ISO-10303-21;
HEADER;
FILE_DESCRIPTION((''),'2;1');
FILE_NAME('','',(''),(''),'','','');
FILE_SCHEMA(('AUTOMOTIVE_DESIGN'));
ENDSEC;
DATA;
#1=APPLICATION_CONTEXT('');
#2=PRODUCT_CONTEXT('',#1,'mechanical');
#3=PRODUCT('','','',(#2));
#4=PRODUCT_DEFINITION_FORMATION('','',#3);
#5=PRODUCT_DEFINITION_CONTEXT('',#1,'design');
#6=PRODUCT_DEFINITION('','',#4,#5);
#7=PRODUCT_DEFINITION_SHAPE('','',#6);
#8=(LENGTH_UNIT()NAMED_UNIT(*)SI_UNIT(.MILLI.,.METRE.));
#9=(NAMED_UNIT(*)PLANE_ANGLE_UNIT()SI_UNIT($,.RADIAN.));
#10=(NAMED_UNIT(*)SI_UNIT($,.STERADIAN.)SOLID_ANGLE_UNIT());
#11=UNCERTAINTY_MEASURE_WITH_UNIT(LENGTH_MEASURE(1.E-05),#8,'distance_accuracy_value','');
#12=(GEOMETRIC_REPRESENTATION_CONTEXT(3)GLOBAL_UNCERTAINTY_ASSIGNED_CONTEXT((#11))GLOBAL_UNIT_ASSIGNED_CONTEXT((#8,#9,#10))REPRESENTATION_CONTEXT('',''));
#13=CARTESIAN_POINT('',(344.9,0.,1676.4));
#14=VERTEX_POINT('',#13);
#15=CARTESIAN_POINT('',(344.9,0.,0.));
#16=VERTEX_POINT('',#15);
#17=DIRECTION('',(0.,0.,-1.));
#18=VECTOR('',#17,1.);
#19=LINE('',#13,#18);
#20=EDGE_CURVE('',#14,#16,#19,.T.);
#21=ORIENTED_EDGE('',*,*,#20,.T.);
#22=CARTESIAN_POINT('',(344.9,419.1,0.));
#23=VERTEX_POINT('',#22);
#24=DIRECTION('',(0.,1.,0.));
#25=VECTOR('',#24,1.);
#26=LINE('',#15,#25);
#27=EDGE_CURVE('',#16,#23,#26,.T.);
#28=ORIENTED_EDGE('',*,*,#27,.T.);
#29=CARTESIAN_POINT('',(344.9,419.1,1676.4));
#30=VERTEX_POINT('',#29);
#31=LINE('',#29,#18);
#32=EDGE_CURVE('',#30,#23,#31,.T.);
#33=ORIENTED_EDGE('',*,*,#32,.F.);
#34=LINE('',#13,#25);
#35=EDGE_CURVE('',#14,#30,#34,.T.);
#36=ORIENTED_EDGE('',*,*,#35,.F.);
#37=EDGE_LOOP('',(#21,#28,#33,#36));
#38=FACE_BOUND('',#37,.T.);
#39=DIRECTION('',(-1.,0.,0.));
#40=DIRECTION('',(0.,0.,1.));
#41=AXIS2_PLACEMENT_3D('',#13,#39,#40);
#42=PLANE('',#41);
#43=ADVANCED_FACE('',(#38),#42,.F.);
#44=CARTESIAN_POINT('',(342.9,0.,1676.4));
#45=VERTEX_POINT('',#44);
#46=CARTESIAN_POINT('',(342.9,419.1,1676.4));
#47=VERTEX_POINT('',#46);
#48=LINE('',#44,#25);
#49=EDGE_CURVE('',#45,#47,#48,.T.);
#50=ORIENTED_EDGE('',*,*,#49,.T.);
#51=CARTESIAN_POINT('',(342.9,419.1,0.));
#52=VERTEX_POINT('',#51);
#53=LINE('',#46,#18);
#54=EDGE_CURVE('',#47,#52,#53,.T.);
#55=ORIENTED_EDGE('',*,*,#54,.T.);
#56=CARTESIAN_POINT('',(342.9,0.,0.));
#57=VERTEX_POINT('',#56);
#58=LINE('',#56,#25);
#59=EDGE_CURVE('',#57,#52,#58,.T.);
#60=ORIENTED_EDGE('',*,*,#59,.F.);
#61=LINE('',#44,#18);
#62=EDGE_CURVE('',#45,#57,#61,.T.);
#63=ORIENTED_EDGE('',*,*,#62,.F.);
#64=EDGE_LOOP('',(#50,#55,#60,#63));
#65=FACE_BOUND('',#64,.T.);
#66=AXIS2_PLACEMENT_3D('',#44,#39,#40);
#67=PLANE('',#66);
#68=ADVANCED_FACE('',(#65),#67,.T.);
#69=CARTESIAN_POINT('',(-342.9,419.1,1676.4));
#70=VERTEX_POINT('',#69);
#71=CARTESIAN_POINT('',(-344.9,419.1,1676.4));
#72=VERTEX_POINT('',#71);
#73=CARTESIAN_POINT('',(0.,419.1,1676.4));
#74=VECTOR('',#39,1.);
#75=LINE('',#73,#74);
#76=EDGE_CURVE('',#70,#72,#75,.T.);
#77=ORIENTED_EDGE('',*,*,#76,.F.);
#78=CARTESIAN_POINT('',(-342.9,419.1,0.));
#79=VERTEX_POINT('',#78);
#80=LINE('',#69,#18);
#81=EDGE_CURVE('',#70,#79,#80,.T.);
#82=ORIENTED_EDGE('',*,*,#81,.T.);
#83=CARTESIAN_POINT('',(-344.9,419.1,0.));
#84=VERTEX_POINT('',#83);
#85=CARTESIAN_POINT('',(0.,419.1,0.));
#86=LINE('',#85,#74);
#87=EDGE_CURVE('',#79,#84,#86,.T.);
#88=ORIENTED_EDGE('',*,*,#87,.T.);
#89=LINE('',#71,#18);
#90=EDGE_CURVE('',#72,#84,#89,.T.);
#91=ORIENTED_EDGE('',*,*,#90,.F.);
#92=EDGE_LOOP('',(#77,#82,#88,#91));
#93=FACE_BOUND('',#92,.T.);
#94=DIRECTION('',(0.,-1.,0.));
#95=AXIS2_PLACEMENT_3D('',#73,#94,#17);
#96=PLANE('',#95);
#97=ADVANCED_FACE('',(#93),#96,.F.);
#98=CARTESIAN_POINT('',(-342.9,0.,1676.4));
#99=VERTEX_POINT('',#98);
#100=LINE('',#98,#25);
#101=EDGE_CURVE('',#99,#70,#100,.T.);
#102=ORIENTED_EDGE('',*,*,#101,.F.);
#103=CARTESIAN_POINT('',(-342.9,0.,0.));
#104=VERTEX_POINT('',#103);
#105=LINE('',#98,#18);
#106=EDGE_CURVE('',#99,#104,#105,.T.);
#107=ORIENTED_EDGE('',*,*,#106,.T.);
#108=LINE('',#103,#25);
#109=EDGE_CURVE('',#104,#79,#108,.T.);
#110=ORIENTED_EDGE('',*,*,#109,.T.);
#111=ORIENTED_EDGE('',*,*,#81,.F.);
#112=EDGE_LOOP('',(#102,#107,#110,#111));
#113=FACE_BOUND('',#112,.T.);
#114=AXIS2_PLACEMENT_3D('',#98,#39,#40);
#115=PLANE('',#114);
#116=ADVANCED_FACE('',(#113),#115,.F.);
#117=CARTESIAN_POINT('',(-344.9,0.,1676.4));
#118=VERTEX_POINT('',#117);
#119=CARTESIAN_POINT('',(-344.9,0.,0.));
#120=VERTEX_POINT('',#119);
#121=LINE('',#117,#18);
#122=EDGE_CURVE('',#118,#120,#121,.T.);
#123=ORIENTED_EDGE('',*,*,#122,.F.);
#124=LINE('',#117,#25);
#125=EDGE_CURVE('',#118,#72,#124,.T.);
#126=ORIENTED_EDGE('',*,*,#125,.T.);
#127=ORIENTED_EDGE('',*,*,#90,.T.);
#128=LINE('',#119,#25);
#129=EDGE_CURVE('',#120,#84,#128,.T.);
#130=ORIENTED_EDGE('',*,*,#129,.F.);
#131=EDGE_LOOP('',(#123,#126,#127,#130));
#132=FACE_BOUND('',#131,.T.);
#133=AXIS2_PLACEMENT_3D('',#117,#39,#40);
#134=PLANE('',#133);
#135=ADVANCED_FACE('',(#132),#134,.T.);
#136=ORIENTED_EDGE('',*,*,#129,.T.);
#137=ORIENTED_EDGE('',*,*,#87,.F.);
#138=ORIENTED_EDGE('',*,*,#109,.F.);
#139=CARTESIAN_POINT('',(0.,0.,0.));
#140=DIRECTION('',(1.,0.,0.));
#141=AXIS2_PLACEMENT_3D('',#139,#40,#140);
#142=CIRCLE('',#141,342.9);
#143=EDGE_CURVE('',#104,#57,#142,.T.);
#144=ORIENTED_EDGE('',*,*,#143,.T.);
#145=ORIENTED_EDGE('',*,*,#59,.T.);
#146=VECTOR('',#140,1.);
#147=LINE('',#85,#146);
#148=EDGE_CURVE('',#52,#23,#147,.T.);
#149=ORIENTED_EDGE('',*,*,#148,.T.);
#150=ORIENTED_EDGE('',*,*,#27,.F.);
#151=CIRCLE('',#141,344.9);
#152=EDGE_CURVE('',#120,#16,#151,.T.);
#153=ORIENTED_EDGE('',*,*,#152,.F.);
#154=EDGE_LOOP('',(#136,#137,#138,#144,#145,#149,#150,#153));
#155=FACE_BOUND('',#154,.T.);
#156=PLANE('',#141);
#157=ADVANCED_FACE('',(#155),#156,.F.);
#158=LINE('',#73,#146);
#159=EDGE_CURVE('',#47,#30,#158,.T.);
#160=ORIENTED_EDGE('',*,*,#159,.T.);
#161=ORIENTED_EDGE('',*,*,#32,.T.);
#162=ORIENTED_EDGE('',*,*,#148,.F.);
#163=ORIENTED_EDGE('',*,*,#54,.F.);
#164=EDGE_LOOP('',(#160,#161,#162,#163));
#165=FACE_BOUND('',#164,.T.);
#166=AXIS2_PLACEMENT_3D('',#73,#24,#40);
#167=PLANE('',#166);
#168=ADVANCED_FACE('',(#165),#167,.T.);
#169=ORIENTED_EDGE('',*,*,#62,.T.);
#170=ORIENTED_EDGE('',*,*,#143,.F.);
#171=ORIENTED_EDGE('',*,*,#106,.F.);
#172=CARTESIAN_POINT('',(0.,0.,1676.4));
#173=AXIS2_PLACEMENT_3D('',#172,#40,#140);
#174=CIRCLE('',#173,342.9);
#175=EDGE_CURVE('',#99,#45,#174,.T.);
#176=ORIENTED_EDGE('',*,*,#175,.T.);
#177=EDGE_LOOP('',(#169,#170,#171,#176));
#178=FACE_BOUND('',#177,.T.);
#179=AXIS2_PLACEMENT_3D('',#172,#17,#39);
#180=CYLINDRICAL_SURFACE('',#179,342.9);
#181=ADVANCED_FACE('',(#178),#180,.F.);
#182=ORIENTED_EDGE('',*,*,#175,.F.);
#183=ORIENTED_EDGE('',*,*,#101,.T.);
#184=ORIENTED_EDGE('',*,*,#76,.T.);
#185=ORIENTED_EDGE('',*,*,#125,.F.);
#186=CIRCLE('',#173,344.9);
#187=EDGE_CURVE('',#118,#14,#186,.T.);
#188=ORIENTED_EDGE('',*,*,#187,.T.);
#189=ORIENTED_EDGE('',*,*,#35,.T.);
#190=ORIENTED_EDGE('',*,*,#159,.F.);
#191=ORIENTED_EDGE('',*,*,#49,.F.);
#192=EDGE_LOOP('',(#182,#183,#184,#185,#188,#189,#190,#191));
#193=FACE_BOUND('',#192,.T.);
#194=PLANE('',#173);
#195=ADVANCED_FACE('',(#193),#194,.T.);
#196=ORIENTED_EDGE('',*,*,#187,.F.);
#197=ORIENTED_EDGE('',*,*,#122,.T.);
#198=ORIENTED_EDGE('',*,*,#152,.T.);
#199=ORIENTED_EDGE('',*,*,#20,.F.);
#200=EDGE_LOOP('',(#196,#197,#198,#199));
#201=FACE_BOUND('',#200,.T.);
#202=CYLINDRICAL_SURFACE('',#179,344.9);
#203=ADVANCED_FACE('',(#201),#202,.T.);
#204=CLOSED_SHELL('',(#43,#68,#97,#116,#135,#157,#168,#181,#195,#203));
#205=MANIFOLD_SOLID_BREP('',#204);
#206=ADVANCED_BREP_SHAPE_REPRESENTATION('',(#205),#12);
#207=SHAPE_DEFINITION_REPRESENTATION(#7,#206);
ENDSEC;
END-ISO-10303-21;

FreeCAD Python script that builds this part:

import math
import FreeCAD as App
import Part
import Sketcher
Q = App.Units.Quantity

doc = App.newDocument("Part")
params = doc.addObject("Spreadsheet::Sheet", "Params")
for row, (alias, value) in enumerate([
    ("sketch1_radius", "13.5 in"),
    ("sketch1_height", "16.5 in"),
    ("pad1_length", "66 in"),
], start=1):
    params.set(f"A{row}", alias)
    params.set(f"B{row}", "=" + value)
    params.setAlias(f"B{row}", alias)

body = doc.addObject("PartDesign::Body", "Body")

# Sketch on XY plane
sketch1 = body.newObject("Sketcher::SketchObject", "Sketch")
sketch1.AttachmentSupport = (doc.getObject("XY_Plane"), [""])
sketch1.MapMode = "FlatFace"
sketch1.addGeometry([
    Part.LineSegment(App.Vector(-344.9, 419.1, 0), App.Vector(-344.9, 0, 0)),  # 0
    Part.ArcOfCircle(Part.Circle(App.Vector(0, 0, 0), App.Vector(0, 0, 1), 344.9), math.radians(180), math.radians(360)),  # 1
    Part.LineSegment(App.Vector(344.9, 0, 0), App.Vector(344.9, 419.1, 0)),  # 2
    Part.LineSegment(App.Vector(344.9, 419.1, 0), App.Vector(342.9, 419.1, 0)),  # 3
    Part.LineSegment(App.Vector(342.9, 419.1, 0), App.Vector(342.9, 0, 0)),  # 4
    Part.ArcOfCircle(Part.Circle(App.Vector(0, 0, 0), App.Vector(0, 0, 1), 342.9), math.radians(180), math.radians(360)),  # 5
    Part.LineSegment(App.Vector(-342.9, 0, 0), App.Vector(-342.9, 419.1, 0)),  # 6
    Part.LineSegment(App.Vector(-342.9, 419.1, 0), App.Vector(-344.9, 419.1, 0)),  # 7
], False)
sketch1.addConstraint([
    Sketcher.Constraint("Tangent", 0, 2, 1, 1),
    Sketcher.Constraint("Tangent", 1, 2, 2, 1),
    Sketcher.Constraint("Coincident", 2, 2, 3, 1),
    Sketcher.Constraint("Coincident", 3, 2, 4, 1),
    Sketcher.Constraint("Tangent", 4, 2, 5, 2),
    Sketcher.Constraint("Tangent", 5, 1, 6, 1),
    Sketcher.Constraint("Coincident", 6, 2, 7, 1),
    Sketcher.Constraint("Coincident", 7, 2, 0, 1),
    Sketcher.Constraint("Vertical", 0),
    Sketcher.Constraint("Vertical", 2),
    Sketcher.Constraint("Horizontal", 3),
    Sketcher.Constraint("Vertical", 4),
    Sketcher.Constraint("Vertical", 6),
    Sketcher.Constraint("Horizontal", 7),
    Sketcher.Constraint("Coincident", 1, 3, -1, 1),
    Sketcher.Constraint("Coincident", 5, 3, -1, 1),
    Sketcher.Constraint("Horizontal", 3, 2, 6, 2),
    Sketcher.Constraint("Radius", 5, Q("13.5 in")),
    Sketcher.Constraint("DistanceY", 0, 2, 0, 1, Q("16.5 in")),
    Sketcher.Constraint("Radius", 1, Q("344.9 mm")),
])
sketch1.setExpression("Constraints[17]", "Params.sketch1_radius")
sketch1.setExpression("Constraints[18]", "Params.sketch1_height")
pad1 = body.newObject("PartDesign::Pad", "Pad")
pad1.Profile = sketch1
pad1.setExpression("Length", "Params.pad1_length")

doc.recompute()
